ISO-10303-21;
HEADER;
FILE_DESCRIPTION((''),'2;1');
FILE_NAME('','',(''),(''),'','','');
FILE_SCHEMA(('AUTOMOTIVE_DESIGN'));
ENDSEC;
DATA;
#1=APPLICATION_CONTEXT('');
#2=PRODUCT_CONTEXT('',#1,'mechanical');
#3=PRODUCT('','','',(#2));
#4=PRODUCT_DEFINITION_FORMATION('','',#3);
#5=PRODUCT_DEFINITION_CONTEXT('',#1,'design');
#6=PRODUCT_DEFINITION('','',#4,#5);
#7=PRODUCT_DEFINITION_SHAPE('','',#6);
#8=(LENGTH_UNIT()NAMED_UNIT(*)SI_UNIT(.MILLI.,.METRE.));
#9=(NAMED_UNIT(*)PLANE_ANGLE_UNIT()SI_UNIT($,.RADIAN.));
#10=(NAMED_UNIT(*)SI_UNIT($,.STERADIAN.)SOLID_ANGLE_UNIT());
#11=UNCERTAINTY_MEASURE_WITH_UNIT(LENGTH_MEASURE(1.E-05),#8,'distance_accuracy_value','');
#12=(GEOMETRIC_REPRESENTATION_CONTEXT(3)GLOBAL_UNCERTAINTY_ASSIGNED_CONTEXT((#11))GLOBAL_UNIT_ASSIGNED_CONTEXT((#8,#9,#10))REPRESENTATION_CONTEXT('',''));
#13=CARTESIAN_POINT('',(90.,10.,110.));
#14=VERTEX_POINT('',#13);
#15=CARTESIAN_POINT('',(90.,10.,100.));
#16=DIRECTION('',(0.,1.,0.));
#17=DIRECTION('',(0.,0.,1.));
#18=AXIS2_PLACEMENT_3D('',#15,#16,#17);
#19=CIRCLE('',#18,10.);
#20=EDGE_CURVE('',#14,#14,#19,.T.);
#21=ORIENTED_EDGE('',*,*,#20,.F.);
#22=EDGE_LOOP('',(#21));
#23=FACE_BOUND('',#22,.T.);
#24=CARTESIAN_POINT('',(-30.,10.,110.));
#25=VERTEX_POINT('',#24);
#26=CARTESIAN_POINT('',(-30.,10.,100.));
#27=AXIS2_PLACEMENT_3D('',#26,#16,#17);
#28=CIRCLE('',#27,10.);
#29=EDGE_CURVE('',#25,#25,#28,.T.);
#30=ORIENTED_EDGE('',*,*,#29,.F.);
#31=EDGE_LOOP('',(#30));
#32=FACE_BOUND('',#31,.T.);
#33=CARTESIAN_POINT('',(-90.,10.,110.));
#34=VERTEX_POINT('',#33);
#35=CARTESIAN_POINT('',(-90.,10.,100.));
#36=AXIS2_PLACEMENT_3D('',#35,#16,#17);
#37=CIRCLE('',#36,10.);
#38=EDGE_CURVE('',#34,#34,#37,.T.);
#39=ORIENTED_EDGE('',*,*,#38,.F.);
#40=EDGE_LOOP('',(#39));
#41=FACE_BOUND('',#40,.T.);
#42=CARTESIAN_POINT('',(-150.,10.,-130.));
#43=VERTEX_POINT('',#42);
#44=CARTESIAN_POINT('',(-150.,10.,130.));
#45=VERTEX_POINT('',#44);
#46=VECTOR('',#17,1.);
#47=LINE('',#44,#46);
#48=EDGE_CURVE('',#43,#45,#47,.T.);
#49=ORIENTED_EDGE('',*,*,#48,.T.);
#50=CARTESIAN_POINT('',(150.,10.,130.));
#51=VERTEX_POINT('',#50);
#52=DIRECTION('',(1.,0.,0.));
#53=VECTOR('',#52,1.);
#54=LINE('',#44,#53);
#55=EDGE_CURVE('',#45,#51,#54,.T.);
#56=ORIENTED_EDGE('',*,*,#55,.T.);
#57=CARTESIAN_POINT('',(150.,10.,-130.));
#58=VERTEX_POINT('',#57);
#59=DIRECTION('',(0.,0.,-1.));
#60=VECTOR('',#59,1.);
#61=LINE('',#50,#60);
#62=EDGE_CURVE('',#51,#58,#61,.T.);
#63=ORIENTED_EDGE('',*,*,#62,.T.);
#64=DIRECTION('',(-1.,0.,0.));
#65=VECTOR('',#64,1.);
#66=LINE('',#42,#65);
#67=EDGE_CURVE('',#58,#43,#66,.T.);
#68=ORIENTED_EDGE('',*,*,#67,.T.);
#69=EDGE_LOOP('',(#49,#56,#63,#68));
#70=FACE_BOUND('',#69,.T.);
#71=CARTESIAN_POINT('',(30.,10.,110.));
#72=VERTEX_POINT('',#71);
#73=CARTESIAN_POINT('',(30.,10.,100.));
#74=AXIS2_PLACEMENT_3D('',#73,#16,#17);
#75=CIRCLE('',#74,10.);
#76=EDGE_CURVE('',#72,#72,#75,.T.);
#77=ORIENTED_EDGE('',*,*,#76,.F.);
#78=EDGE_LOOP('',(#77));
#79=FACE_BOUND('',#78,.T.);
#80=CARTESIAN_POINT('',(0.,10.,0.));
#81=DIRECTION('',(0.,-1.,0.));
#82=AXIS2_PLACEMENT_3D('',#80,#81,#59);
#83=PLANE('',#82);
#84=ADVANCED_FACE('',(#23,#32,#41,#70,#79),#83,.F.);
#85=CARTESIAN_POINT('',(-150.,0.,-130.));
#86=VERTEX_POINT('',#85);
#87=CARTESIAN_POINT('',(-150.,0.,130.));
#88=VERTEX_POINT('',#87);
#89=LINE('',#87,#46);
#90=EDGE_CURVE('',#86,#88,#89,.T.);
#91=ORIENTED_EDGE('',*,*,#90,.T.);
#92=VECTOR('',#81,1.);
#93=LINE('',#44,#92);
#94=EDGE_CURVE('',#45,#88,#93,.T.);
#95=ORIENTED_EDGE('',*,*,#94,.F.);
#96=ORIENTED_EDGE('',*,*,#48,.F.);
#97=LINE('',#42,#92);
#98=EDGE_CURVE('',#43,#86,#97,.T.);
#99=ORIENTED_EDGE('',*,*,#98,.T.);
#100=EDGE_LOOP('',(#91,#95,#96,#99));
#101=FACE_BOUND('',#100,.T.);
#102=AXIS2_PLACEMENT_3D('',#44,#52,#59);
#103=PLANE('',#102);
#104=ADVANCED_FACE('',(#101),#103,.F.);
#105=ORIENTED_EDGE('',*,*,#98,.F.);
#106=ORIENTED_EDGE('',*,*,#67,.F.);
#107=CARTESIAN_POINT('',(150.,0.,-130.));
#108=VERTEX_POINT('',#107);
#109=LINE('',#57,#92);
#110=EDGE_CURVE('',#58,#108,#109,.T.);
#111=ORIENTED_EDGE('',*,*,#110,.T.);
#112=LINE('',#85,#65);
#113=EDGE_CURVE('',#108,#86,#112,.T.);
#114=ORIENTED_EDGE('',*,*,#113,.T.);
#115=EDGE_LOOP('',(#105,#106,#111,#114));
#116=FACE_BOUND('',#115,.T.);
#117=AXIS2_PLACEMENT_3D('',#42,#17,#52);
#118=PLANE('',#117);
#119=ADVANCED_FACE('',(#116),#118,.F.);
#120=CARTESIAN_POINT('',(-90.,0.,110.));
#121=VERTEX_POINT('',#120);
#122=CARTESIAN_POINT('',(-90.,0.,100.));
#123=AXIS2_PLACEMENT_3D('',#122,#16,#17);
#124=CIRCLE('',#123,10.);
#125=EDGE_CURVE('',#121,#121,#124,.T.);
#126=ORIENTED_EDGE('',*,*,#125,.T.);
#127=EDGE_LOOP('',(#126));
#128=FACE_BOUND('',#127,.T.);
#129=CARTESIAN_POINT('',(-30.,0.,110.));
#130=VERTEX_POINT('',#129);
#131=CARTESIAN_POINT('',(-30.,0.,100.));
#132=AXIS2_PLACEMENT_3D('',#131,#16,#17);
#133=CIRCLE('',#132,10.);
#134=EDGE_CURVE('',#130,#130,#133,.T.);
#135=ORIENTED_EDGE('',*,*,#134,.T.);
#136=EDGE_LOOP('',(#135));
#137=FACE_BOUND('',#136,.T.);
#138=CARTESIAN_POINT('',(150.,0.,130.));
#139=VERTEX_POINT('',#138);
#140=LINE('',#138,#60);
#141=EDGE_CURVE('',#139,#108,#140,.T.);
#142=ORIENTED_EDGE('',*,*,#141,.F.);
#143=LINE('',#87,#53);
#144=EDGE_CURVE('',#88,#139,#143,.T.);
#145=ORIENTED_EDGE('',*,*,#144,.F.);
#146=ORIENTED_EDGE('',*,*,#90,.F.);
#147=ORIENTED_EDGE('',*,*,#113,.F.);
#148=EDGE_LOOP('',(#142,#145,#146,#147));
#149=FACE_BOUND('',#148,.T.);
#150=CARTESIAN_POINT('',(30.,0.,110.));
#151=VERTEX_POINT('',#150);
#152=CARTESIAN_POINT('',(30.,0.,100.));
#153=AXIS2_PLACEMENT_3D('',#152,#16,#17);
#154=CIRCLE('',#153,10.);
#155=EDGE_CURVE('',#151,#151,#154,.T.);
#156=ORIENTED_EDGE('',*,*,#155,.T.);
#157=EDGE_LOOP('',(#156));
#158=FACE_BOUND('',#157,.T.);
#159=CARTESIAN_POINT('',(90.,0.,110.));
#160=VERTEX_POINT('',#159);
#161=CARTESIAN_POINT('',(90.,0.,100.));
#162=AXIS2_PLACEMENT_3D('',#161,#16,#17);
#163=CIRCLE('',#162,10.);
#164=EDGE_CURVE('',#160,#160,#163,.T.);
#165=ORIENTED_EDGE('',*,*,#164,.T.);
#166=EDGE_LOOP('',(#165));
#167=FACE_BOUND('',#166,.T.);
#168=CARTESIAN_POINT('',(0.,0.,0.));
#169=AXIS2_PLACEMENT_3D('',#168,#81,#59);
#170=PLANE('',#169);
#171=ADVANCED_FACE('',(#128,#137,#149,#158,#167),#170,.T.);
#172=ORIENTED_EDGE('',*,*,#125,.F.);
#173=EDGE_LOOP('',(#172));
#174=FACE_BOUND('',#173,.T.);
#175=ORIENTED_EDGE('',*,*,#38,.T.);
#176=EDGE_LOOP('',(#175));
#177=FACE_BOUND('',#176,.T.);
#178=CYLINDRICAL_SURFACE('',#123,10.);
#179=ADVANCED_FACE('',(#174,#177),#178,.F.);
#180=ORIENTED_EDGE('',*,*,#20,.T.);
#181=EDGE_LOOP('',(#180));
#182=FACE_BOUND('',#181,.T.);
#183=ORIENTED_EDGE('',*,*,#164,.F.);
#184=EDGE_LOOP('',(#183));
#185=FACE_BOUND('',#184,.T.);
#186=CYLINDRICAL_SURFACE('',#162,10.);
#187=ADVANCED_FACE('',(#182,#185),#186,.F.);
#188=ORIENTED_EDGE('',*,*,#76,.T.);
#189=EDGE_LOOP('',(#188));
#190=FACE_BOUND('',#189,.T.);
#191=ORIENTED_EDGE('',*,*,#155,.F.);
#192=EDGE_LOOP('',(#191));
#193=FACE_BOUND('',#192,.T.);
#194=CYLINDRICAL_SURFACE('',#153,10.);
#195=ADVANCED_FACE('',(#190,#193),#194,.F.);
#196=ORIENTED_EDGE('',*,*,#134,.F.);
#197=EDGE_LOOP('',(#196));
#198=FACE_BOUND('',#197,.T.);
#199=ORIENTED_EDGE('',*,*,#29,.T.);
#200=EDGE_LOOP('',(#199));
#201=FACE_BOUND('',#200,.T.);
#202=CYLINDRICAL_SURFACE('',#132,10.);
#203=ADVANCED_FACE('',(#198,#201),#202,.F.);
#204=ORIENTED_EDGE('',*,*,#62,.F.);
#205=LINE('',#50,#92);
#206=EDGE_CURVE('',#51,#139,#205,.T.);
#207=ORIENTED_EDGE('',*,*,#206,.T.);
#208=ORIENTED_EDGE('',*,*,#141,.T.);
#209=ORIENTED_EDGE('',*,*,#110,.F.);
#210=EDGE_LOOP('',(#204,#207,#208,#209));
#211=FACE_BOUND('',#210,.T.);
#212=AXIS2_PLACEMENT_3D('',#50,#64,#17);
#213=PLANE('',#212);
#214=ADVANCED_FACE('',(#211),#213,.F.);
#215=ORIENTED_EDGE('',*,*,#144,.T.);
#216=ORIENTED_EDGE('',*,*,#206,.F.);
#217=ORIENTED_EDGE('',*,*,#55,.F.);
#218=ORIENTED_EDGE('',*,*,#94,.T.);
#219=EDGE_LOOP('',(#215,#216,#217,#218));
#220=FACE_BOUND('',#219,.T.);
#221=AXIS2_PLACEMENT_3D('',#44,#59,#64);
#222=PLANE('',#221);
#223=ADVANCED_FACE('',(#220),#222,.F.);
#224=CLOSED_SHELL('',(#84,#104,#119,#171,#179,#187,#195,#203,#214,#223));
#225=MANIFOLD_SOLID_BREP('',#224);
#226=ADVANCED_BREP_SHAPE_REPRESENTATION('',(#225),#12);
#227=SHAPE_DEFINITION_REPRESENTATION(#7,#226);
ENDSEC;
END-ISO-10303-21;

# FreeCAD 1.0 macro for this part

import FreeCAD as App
import Part
import Sketcher

V = App.Vector
Q = App.Units.Quantity


def add_polygon(sketch, points):
    """Adds a closed chain of lines whose ends are joined by coincident constraints."""
    first, n = sketch.GeometryCount, len(points)
    for a, b in zip(points, points[1:] + points[:1]):
        sketch.addGeometry(Part.LineSegment(App.Vector(*a, 0), App.Vector(*b, 0)), False)
    for i in range(n):
        sketch.addConstraint(Sketcher.Constraint("Coincident", first + i, 2, first + (i + 1) % n, 1))

doc = App.newDocument("Part")
body = doc.addObject("PartDesign::Body", "Body")

sketch1 = body.newObject("Sketcher::SketchObject", "Sketch")
sketch1.AttachmentSupport = (doc.getObject("XZ_Plane"), [""])
sketch1.MapMode = "FlatFace"
add_polygon(sketch1, [(-150, -130), (-150, 130), (150, 130), (150, -130)])
sketch1.addConstraint(Sketcher.Constraint("Vertical", 0))
sketch1.addConstraint(Sketcher.Constraint("Horizontal", 1))
sketch1.addConstraint(Sketcher.Constraint("Vertical", 2))
sketch1.addConstraint(Sketcher.Constraint("Horizontal", 3))
sketch1.addConstraint(Sketcher.Constraint("Symmetric", 0, 2, 2, 2, -1, 1))
sketch1.addConstraint(Sketcher.Constraint("DistanceX", 1, 1, 1, 2, Q("300 mm")))
sketch1.addConstraint(Sketcher.Constraint("DistanceY", 0, 1, 0, 2, Q("260 mm")))
pad1 = body.newObject("PartDesign::Pad", "Pad")
pad1.Profile = sketch1
pad1.Length = 10
pad1.Reversed = True

sketch2 = body.newObject("Sketcher::SketchObject", "Sketch001")
sketch2.AttachmentSupport = (doc.getObject("XZ_Plane"), [""])
sketch2.MapMode = "FlatFace"
sketch2.AttachmentOffset = App.Placement(V(0, 0, -10), App.Rotation())
sketch2.addGeometry(Part.Circle(V(-90, 100, 0), V(0, 0, 1), 10), False)
sketch2.addConstraint(Sketcher.Constraint("Diameter", 0, Q("20 mm")))
sketch2.addConstraint(Sketcher.Constraint("DistanceX", 0, 3, -1, 1, Q("90 mm")))
sketch2.addConstraint(Sketcher.Constraint("DistanceY", -1, 1, 0, 3, Q("100 mm")))
pocket1 = body.newObject("PartDesign::Pocket", "Pocket")
pocket1.Profile = sketch2
pocket1.Type = "ThroughAll"
pocket1.Reversed = True
doc.recompute()

linearpattern = body.newObject("PartDesign::LinearPattern", "LinearPattern")
linearpattern.Originals = [pocket1]
linearpattern.Direction = (doc.getObject("X_Axis"), [""])
linearpattern.Mode = "offset"
linearpattern.Offset = 60
linearpattern.Occurrences = 4
body.Tip = linearpattern

doc.recompute()
